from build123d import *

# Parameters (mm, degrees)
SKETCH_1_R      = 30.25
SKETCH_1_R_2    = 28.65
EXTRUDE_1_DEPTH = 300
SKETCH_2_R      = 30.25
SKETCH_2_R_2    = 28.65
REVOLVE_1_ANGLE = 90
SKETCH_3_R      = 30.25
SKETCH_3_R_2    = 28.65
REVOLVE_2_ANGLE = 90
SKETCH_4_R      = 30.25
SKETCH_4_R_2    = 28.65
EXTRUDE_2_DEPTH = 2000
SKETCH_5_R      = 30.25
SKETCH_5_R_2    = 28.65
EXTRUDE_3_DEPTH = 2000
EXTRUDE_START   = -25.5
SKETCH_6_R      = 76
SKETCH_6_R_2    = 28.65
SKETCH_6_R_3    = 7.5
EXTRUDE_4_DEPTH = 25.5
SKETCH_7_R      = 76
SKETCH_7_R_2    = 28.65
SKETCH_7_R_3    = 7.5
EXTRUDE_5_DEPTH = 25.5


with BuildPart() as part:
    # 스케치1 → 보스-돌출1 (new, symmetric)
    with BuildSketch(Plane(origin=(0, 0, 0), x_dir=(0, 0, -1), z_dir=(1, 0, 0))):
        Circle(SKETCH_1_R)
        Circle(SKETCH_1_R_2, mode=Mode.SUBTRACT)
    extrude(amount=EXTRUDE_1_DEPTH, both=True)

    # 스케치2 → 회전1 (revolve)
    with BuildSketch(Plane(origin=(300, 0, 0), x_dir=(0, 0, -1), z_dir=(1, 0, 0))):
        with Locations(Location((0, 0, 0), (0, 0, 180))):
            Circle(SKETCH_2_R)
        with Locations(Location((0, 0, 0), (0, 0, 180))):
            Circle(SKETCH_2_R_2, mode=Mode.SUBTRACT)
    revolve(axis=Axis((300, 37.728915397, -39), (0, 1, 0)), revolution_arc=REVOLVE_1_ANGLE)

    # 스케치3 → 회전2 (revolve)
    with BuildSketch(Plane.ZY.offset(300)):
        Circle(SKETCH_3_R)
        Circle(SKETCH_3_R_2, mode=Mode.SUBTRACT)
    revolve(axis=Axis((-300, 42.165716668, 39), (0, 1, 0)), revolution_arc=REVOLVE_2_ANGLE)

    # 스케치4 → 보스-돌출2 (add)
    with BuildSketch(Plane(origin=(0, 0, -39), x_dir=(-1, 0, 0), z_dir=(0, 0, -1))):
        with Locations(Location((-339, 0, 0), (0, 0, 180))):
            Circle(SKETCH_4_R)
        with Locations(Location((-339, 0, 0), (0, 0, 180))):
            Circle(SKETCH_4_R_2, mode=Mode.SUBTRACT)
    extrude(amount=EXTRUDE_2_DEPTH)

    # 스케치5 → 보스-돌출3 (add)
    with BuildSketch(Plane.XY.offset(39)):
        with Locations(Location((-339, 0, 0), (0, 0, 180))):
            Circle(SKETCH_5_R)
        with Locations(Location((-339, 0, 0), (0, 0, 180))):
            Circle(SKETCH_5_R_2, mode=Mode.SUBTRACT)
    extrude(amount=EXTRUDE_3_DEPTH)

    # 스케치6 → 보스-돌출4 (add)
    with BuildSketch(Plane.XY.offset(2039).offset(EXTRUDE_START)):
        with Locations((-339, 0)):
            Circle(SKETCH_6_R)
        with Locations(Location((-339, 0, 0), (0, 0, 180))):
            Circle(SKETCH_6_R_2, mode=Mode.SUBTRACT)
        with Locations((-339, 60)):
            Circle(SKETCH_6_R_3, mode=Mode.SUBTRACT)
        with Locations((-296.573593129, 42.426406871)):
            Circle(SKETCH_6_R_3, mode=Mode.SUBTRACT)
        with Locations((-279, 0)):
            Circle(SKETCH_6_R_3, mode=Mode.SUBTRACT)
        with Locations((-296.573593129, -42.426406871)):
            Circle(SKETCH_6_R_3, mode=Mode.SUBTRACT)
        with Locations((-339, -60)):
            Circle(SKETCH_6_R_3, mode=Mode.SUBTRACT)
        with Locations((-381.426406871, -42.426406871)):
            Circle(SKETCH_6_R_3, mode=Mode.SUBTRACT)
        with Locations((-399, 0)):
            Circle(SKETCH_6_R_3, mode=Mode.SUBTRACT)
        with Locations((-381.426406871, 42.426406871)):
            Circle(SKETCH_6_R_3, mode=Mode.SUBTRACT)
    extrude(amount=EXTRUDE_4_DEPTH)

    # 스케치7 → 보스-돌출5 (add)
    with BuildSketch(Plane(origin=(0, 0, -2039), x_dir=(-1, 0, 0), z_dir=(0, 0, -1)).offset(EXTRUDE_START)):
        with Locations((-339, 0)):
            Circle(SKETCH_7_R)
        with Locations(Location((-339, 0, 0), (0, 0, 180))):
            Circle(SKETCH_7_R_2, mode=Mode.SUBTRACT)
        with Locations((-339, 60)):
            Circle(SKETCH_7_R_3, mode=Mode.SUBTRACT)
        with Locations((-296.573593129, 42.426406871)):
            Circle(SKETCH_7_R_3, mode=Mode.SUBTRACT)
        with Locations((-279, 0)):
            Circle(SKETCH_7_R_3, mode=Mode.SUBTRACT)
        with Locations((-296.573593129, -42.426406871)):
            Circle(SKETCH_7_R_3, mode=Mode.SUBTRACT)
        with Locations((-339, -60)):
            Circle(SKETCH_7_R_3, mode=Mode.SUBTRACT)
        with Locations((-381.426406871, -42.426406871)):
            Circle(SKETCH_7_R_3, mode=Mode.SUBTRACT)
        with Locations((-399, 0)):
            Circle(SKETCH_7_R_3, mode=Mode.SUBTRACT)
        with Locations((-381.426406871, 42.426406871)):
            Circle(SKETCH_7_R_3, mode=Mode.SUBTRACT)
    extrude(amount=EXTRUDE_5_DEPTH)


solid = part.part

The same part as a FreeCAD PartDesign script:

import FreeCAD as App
import Part
import Sketcher
Q = App.Units.Quantity

doc = App.newDocument("Part")
body = doc.addObject("PartDesign::Body", "Body")

# Sketch on YZ plane
sketch1 = body.newObject("Sketcher::SketchObject", "Sketch")
sketch1.AttachmentSupport = (doc.getObject("YZ_Plane"), [""])
sketch1.MapMode = "FlatFace"
sketch1.addGeometry(Part.Circle(App.Vector(0, 0, 0), App.Vector(0, 0, 1), 30), False)
sketch1.addGeometry(Part.Circle(App.Vector(0, 0, 0), App.Vector(0, 0, 1), 29), False)
sketch1.addConstraint(Sketcher.Constraint("Coincident", 0, 3, -1, 1))
sketch1.addConstraint(Sketcher.Constraint("Coincident", 1, 3, -1, 1))
sketch1.addConstraint(Sketcher.Constraint("Diameter", 0, Q("60.5 mm")))
sketch1.addConstraint(Sketcher.Constraint("Diameter", 1, Q("57.3 mm")))
pad1 = body.newObject("PartDesign::Pad", "Pad")
pad1.Profile = sketch1
pad1.Length = 600
pad1.Midplane = True

# Sketch on YZ plane
sketch2 = body.newObject("Sketcher::SketchObject", "Sketch001")
sketch2.AttachmentSupport = (doc.getObject("YZ_Plane"), [""])
sketch2.MapMode = "FlatFace"
sketch2.AttachmentOffset = App.Placement(App.Vector(0, 0, 300), App.Rotation())
sketch2.addGeometry(Part.Circle(App.Vector(0, 0, 0), App.Vector(0, 0, 1), 30), False)
sketch2.addGeometry(Part.Circle(App.Vector(0, 0, 0), App.Vector(0, 0, 1), 29), False)
sketch2.addGeometry(Part.LineSegment(App.Vector(0, -39, 0), App.Vector(10, -39, 0)), True)  # axis
sketch2.addConstraint(Sketcher.Constraint("Horizontal", 2))
sketch2.addConstraint(Sketcher.Constraint("Coincident", 0, 3, -1, 1))
sketch2.addConstraint(Sketcher.Constraint("Coincident", 1, 3, -1, 1))
sketch2.addConstraint(Sketcher.Constraint("PointOnObject", 2, 1, -2))
sketch2.addConstraint(Sketcher.Constraint("Diameter", 0, Q("60.5 mm")))
sketch2.addConstraint(Sketcher.Constraint("Diameter", 1, Q("57.3 mm")))
sketch2.addConstraint(Sketcher.Constraint("DistanceX", 2, 1, 2, 2, Q("10 mm")))
sketch2.addConstraint(Sketcher.Constraint("DistanceY", 2, 1, -1, 1, Q("39 mm")))
revolution = body.newObject("PartDesign::Revolution", "Revolution")
revolution.Profile = sketch2
revolution.ReferenceAxis = (sketch2, ["Axis0"])
revolution.Angle = 90

# Sketch on YZ plane
sketch3 = body.newObject("Sketcher::SketchObject", "Sketch002")
sketch3.AttachmentSupport = (doc.getObject("YZ_Plane"), [""])
sketch3.MapMode = "FlatFace"
sketch3.AttachmentOffset = App.Placement(App.Vector(0, 0, -300), App.Rotation())
sketch3.addGeometry(Part.Circle(App.Vector(0, 0, 0), App.Vector(0, 0, 1), 30), False)
sketch3.addGeometry(Part.Circle(App.Vector(0, 0, 0), App.Vector(0, 0, 1), 29), False)
sketch3.addGeometry(Part.LineSegment(App.Vector(0, 39, 0), App.Vector(10, 39, 0)), True)  # axis
sketch3.addConstraint(Sketcher.Constraint("Horizontal", 2))
sketch3.addConstraint(Sketcher.Constraint("Coincident", 0, 3, -1, 1))
sketch3.addConstraint(Sketcher.Constraint("Coincident", 1, 3, -1, 1))
sketch3.addConstraint(Sketcher.Constraint("PointOnObject", 2, 1, -2))
sketch3.addConstraint(Sketcher.Constraint("Diameter", 0, Q("60.5 mm")))
sketch3.addConstraint(Sketcher.Constraint("Diameter", 1, Q("57.3 mm")))
sketch3.addConstraint(Sketcher.Constraint("DistanceX", 2, 1, 2, 2, Q("10 mm")))
sketch3.addConstraint(Sketcher.Constraint("DistanceY", -1, 1, 2, 1, Q("39 mm")))
revolution2 = body.newObject("PartDesign::Revolution", "Revolution001")
revolution2.Profile = sketch3
revolution2.ReferenceAxis = (sketch3, ["Axis0"])
revolution2.Angle = 90

# Sketch on XY plane
sketch4 = body.newObject("Sketcher::SketchObject", "Sketch003")
sketch4.AttachmentSupport = (doc.getObject("XY_Plane"), [""])
sketch4.MapMode = "FlatFace"
sketch4.AttachmentOffset = App.Placement(App.Vector(0, 0, -39), App.Rotation())
sketch4.addGeometry(Part.Circle(App.Vector(339, 0, 0), App.Vector(0, 0, 1), 30), False)
sketch4.addGeometry(Part.Circle(App.Vector(339, 0, 0), App.Vector(0, 0, 1), 29), False)
sketch4.addConstraint(Sketcher.Constraint("Coincident", 1, 3, 0, 3))
sketch4.addConstraint(Sketcher.Constraint("PointOnObject", 0, 3, -1))
sketch4.addConstraint(Sketcher.Constraint("Diameter", 0, Q("60.5 mm")))
sketch4.addConstraint(Sketcher.Constraint("Diameter", 1, Q("57.3 mm")))
sketch4.addConstraint(Sketcher.Constraint("DistanceX", -1, 1, 0, 3, Q("339 mm")))
pad2 = body.newObject("PartDesign::Pad", "Pad001")
pad2.Profile = sketch4
pad2.Length = 2000
pad2.Reversed = True

# Sketch on XY plane
sketch5 = body.newObject("Sketcher::SketchObject", "Sketch004")
sketch5.AttachmentSupport = (doc.getObject("XY_Plane"), [""])
sketch5.MapMode = "FlatFace"
sketch5.AttachmentOffset = App.Placement(App.Vector(0, 0, 39), App.Rotation())
sketch5.addGeometry(Part.Circle(App.Vector(-339, 0, 0), App.Vector(0, 0, 1), 30), False)
sketch5.addGeometry(Part.Circle(App.Vector(-339, 0, 0), App.Vector(0, 0, 1), 29), False)
sketch5.addConstraint(Sketcher.Constraint("Coincident", 1, 3, 0, 3))
sketch5.addConstraint(Sketcher.Constraint("PointOnObject", 0, 3, -1))
sketch5.addConstraint(Sketcher.Constraint("Diameter", 0, Q("60.5 mm")))
sketch5.addConstraint(Sketcher.Constraint("Diameter", 1, Q("57.3 mm")))
sketch5.addConstraint(Sketcher.Constraint("DistanceX", 0, 3, -1, 1, Q("339 mm")))
pad3 = body.newObject("PartDesign::Pad", "Pad002")
pad3.Profile = sketch5
pad3.Length = 2000

# Sketch on XY plane
sketch6 = body.newObject("Sketcher::SketchObject", "Sketch005")
sketch6.AttachmentSupport = (doc.getObject("XY_Plane"), [""])
sketch6.MapMode = "FlatFace"
sketch6.AttachmentOffset = App.Placement(App.Vector(0, 0, 2013.5), App.Rotation())
sketch6.addGeometry(Part.Circle(App.Vector(-339, 0, 0), App.Vector(0, 0, 1), 76), False)
sketch6.addGeometry(Part.Circle(App.Vector(-381, -42, 0), App.Vector(0, 0, 1), 8), False)
sketch6.addGeometry(Part.Circle(App.Vector(-339, -60, 0), App.Vector(0, 0, 1), 8), False)
sketch6.addGeometry(Part.Circle(App.Vector(-297, -42, 0), App.Vector(0, 0, 1), 8), False)
sketch6.addGeometry(Part.Circle(App.Vector(-399, 0, 0), App.Vector(0, 0, 1), 8), False)
sketch6.addGeometry(Part.Circle(App.Vector(-381, 42, 0), App.Vector(0, 0, 1), 8), False)
sketch6.addGeometry(Part.Circle(App.Vector(-339, 0, 0), App.Vector(0, 0, 1), 29), False)
sketch6.addGeometry(Part.Circle(App.Vector(-279, 0, 0), App.Vector(0, 0, 1), 8), False)
sketch6.addGeometry(Part.Circle(App.Vector(-339, 60, 0), App.Vector(0, 0, 1), 8), False)
sketch6.addGeometry(Part.Circle(App.Vector(-297, 42, 0), App.Vector(0, 0, 1), 8), False)
sketch6.addConstraint(Sketcher.Constraint("Coincident", 6, 3, 0, 3))
sketch6.addConstraint(Sketcher.Constraint("Equal", 1, 2))
sketch6.addConstraint(Sketcher.Constraint("Equal", 2, 3))
sketch6.addConstraint(Sketcher.Constraint("Equal", 3, 4))
sketch6.addConstraint(Sketcher.Constraint("Equal", 4, 5))
sketch6.addConstraint(Sketcher.Constraint("Equal", 5, 7))
sketch6.addConstraint(Sketcher.Constraint("Equal", 7, 8))
sketch6.addConstraint(Sketcher.Constraint("Equal", 8, 9))
sketch6.addConstraint(Sketcher.Constraint("Symmetric", 1, 3, 5, 3, -1))
sketch6.addConstraint(Sketcher.Constraint("Symmetric", 2, 3, 8, 3, -1))
sketch6.addConstraint(Sketcher.Constraint("Symmetric", 3, 3, 9, 3, -1))
sketch6.addConstraint(Sketcher.Constraint("PointOnObject", 0, 3, -1))
sketch6.addConstraint(Sketcher.Constraint("PointOnObject", 4, 3, -1))
sketch6.addConstraint(Sketcher.Constraint("PointOnObject", 7, 3, -1))
sketch6.addConstraint(Sketcher.Constraint("Horizontal", 1, 3, 3, 3))
sketch6.addConstraint(Sketcher.Constraint("Vertical", 0, 3, 2, 3))
sketch6.addConstraint(Sketcher.Constraint("Diameter", 0, Q("152 mm")))
sketch6.addConstraint(Sketcher.Constraint("Diameter", 1, Q("15 mm")))
sketch6.addConstraint(Sketcher.Constraint("Diameter", 6, Q("57.3 mm")))
sketch6.addConstraint(Sketcher.Constraint("DistanceX", 0, 3, -1, 1, Q("339 mm")))
sketch6.addConstraint(Sketcher.Constraint("DistanceY", 2, 3, -1, 1, Q("60 mm")))
sketch6.addConstraint(Sketcher.Constraint("DistanceX", 4, 3, -1, 1, Q("399 mm")))
sketch6.addConstraint(Sketcher.Constraint("DistanceX", 7, 3, -1, 1, Q("279 mm")))
sketch6.addConstraint(Sketcher.Constraint("DistanceX", 1, 3, -1, 1, Q("381.426407 mm")))
sketch6.addConstraint(Sketcher.Constraint("DistanceY", 1, 3, -1, 1, Q("42.426407 mm")))
sketch6.addConstraint(Sketcher.Constraint("DistanceX", 3, 3, -1, 1, Q("296.573593 mm")))
pad4 = body.newObject("PartDesign::Pad", "Pad003")
pad4.Profile = sketch6
pad4.Length = 25.5

# Sketch on XY plane
sketch7 = body.newObject("Sketcher::SketchObject", "Sketch006")
sketch7.AttachmentSupport = (doc.getObject("XY_Plane"), [""])
sketch7.MapMode = "FlatFace"
sketch7.AttachmentOffset = App.Placement(App.Vector(0, 0, -2013.5), App.Rotation())
sketch7.addGeometry(Part.Circle(App.Vector(339, 0, 0), App.Vector(0, 0, 1), 76), False)
sketch7.addGeometry(Part.Circle(App.Vector(381, -42, 0), App.Vector(0, 0, 1), 8), False)
sketch7.addGeometry(Part.Circle(App.Vector(339, -60, 0), App.Vector(0, 0, 1), 8), False)
sketch7.addGeometry(Part.Circle(App.Vector(297, -42, 0), App.Vector(0, 0, 1), 8), False)
sketch7.addGeometry(Part.Circle(App.Vector(399, 0, 0), App.Vector(0, 0, 1), 8), False)
sketch7.addGeometry(Part.Circle(App.Vector(381, 42, 0), App.Vector(0, 0, 1), 8), False)
sketch7.addGeometry(Part.Circle(App.Vector(339, 0, 0), App.Vector(0, 0, 1), 29), False)
sketch7.addGeometry(Part.Circle(App.Vector(279, 0, 0), App.Vector(0, 0, 1), 8), False)
sketch7.addGeometry(Part.Circle(App.Vector(339, 60, 0), App.Vector(0, 0, 1), 8), False)
sketch7.addGeometry(Part.Circle(App.Vector(297, 42, 0), App.Vector(0, 0, 1), 8), False)
sketch7.addConstraint(Sketcher.Constraint("Coincident", 6, 3, 0, 3))
sketch7.addConstraint(Sketcher.Constraint("Equal", 1, 2))
sketch7.addConstraint(Sketcher.Constraint("Equal", 2, 3))
sketch7.addConstraint(Sketcher.Constraint("Equal", 3, 4))
sketch7.addConstraint(Sketcher.Constraint("Equal", 4, 5))
sketch7.addConstraint(Sketcher.Constraint("Equal", 5, 7))
sketch7.addConstraint(Sketcher.Constraint("Equal", 7, 8))
sketch7.addConstraint(Sketcher.Constraint("Equal", 8, 9))
sketch7.addConstraint(Sketcher.Constraint("Symmetric", 1, 3, 5, 3, -1))
sketch7.addConstraint(Sketcher.Constraint("Symmetric", 2, 3, 8, 3, -1))
sketch7.addConstraint(Sketcher.Constraint("Symmetric", 3, 3, 9, 3, -1))
sketch7.addConstraint(Sketcher.Constraint("PointOnObject", 0, 3, -1))
sketch7.addConstraint(Sketcher.Constraint("PointOnObject", 4, 3, -1))
sketch7.addConstraint(Sketcher.Constraint("PointOnObject", 7, 3, -1))
sketch7.addConstraint(Sketcher.Constraint("Horizontal", 1, 3, 3, 3))
sketch7.addConstraint(Sketcher.Constraint("Vertical", 0, 3, 2, 3))
sketch7.addConstraint(Sketcher.Constraint("Diameter", 0, Q("152 mm")))
sketch7.addConstraint(Sketcher.Constraint("Diameter", 1, Q("15 mm")))
sketch7.addConstraint(Sketcher.Constraint("Diameter", 6, Q("57.3 mm")))
sketch7.addConstraint(Sketcher.Constraint("DistanceX", -1, 1, 0, 3, Q("339 mm")))
sketch7.addConstraint(Sketcher.Constraint("DistanceY", 2, 3, -1, 1, Q("60 mm")))
sketch7.addConstraint(Sketcher.Constraint("DistanceX", -1, 1, 4, 3, Q("399 mm")))
sketch7.addConstraint(Sketcher.Constraint("DistanceX", -1, 1, 7, 3, Q("279 mm")))
sketch7.addConstraint(Sketcher.Constraint("DistanceX", -1, 1, 1, 3, Q("381.426407 mm")))
sketch7.addConstraint(Sketcher.Constraint("DistanceY", 1, 3, -1, 1, Q("42.426407 mm")))
sketch7.addConstraint(Sketcher.Constraint("DistanceX", -1, 1, 3, 3, Q("296.573593 mm")))
pad5 = body.newObject("PartDesign::Pad", "Pad004")
pad5.Profile = sketch7
pad5.Length = 25.5
pad5.Reversed = True

doc.recompute()
